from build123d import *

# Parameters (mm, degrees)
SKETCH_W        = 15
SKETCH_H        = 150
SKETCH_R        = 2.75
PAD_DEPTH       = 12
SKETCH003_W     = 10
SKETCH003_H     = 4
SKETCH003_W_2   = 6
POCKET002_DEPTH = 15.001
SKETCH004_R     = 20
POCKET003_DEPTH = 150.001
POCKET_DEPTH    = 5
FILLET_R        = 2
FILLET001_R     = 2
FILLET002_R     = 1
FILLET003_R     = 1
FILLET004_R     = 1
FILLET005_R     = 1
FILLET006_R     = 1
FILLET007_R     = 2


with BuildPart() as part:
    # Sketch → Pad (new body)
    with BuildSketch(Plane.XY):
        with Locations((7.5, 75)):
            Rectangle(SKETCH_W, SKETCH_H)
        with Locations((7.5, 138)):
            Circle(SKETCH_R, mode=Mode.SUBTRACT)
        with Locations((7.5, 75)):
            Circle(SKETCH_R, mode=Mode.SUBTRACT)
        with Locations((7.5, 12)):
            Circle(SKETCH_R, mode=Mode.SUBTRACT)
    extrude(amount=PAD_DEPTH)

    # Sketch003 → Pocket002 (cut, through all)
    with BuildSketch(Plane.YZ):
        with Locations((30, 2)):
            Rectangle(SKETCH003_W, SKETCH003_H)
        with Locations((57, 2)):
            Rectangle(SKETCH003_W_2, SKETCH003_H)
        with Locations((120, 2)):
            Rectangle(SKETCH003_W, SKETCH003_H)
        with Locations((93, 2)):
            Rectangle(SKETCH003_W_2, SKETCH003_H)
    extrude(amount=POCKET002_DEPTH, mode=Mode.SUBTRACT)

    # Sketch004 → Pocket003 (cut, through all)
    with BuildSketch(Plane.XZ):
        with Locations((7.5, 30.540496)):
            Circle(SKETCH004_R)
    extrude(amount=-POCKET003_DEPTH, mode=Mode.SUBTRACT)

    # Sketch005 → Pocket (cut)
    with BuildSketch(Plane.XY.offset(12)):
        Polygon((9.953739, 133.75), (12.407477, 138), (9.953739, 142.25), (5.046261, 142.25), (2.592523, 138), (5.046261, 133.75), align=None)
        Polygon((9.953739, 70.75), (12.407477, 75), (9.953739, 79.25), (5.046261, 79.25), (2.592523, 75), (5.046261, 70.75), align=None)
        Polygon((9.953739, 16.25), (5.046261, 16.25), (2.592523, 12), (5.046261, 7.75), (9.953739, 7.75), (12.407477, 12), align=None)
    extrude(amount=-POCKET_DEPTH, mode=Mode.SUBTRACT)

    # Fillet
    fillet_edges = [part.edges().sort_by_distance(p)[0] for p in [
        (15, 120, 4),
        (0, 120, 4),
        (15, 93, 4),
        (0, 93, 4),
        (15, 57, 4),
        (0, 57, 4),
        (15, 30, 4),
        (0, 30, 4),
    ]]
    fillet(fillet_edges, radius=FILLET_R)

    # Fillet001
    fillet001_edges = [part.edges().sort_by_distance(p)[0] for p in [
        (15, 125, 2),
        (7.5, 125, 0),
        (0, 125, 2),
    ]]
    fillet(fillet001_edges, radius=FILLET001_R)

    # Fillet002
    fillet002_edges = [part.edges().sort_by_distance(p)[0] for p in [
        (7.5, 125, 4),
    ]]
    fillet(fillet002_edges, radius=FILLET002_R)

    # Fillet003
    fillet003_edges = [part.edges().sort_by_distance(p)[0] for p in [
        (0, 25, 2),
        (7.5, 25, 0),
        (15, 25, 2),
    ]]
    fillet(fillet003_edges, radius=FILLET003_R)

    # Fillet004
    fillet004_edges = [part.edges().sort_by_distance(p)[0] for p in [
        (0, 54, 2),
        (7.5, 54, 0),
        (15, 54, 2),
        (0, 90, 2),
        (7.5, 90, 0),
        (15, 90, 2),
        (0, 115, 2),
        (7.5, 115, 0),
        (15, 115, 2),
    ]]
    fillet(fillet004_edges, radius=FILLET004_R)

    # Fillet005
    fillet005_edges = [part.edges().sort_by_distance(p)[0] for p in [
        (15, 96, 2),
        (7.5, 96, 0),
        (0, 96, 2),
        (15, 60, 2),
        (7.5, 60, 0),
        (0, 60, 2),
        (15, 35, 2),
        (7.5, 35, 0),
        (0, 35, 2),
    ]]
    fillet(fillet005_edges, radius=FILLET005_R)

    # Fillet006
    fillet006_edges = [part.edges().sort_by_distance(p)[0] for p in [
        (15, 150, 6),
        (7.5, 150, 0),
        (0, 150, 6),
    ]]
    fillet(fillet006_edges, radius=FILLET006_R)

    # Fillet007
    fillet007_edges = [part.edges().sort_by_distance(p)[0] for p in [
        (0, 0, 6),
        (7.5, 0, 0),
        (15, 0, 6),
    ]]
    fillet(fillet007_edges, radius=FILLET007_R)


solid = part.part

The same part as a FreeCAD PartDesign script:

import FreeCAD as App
import Part
import Sketcher
Q = App.Units.Quantity


def edges_at(feature, points):
    """Names of the edges that pass closest to the given points."""
    edges = feature.Shape.Edges
    near = lambda p: min(range(len(edges)), key=lambda i: edges[i].distToShape(Part.Vertex(*p))[0])
    return sorted({f"Edge{near(p) + 1}" for p in points})

doc = App.newDocument("Part")
body = doc.addObject("PartDesign::Body", "Body")

# Sketch on XY plane
sketch1 = body.newObject("Sketcher::SketchObject", "Sketch")
sketch1.AttachmentSupport = (doc.getObject("XY_Plane"), [""])
sketch1.MapMode = "FlatFace"
sketch1.addGeometry([
    Part.LineSegment(App.Vector(0, 150, 0), App.Vector(0, 0, 0)),  # 0
    Part.LineSegment(App.Vector(0, 0, 0), App.Vector(15, 0, 0)),  # 1
    Part.LineSegment(App.Vector(15, 0, 0), App.Vector(15, 150, 0)),  # 2
    Part.LineSegment(App.Vector(15, 150, 0), App.Vector(0, 150, 0)),  # 3
    Part.Circle(App.Vector(7.5, 12, 0), App.Vector(0, 0, 1), 2.8),  # 4
    Part.Circle(App.Vector(7.5, 75, 0), App.Vector(0, 0, 1), 2.8),  # 5
    Part.Circle(App.Vector(7.5, 138, 0), App.Vector(0, 0, 1), 2.8),  # 6
], False)
sketch1.addConstraint([
    Sketcher.Constraint("Coincident", 0, 2, 1, 1),
    Sketcher.Constraint("Coincident", 1, 2, 2, 1),
    Sketcher.Constraint("Coincident", 2, 2, 3, 1),
    Sketcher.Constraint("Coincident", 3, 2, 0, 1),
    Sketcher.Constraint("Vertical", 0),
    Sketcher.Constraint("Horizontal", 1),
    Sketcher.Constraint("Vertical", 2),
    Sketcher.Constraint("Horizontal", 3),
    Sketcher.Constraint("Coincident", 0, 2, -1, 1),
    Sketcher.Constraint("Equal", 4, 5),
    Sketcher.Constraint("Equal", 5, 6),
    Sketcher.Constraint("Vertical", 4, 3, 5, 3),
    Sketcher.Constraint("Vertical", 5, 3, 6, 3),
    Sketcher.Constraint("Diameter", 4, Q("5.5 mm")),
    Sketcher.Constraint("DistanceX", 1, 1, 1, 2, Q("15 mm")),
    Sketcher.Constraint("DistanceY", 0, 2, 0, 1, Q("150 mm")),
    Sketcher.Constraint("DistanceY", -1, 1, 4, 3, Q("12 mm")),
    Sketcher.Constraint("DistanceY", -1, 1, 5, 3, Q("75 mm")),
    Sketcher.Constraint("DistanceY", -1, 1, 6, 3, Q("138 mm")),
    Sketcher.Constraint("DistanceX", -1, 1, 4, 3, Q("7.5 mm")),
])
pad1 = body.newObject("PartDesign::Pad", "Pad")
pad1.Profile = sketch1
pad1.Length = 12

# Sketch on YZ plane
sketch2 = body.newObject("Sketcher::SketchObject", "Sketch001")
sketch2.AttachmentSupport = (doc.getObject("YZ_Plane"), [""])
sketch2.MapMode = "FlatFace"
sketch2.addGeometry([
    Part.LineSegment(App.Vector(25, 4, 0), App.Vector(25, 0, 0)),  # 0
    Part.LineSegment(App.Vector(25, 0, 0), App.Vector(35, 0, 0)),  # 1
    Part.LineSegment(App.Vector(35, 0, 0), App.Vector(35, 4, 0)),  # 2
    Part.LineSegment(App.Vector(35, 4, 0), App.Vector(25, 4, 0)),  # 3
    Part.LineSegment(App.Vector(54, 4, 0), App.Vector(54, 0, 0)),  # 4
    Part.LineSegment(App.Vector(54, 0, 0), App.Vector(60, 0, 0)),  # 5
    Part.LineSegment(App.Vector(60, 0, 0), App.Vector(60, 4, 0)),  # 6
    Part.LineSegment(App.Vector(60, 4, 0), App.Vector(54, 4, 0)),  # 7
    Part.LineSegment(App.Vector(115, 4, 0), App.Vector(115, 0, 0)),  # 8
    Part.LineSegment(App.Vector(115, 0, 0), App.Vector(125, 0, 0)),  # 9
    Part.LineSegment(App.Vector(125, 0, 0), App.Vector(125, 4, 0)),  # 10
    Part.LineSegment(App.Vector(125, 4, 0), App.Vector(115, 4, 0)),  # 11
    Part.LineSegment(App.Vector(90, 4, 0), App.Vector(90, 0, 0)),  # 12
    Part.LineSegment(App.Vector(90, 0, 0), App.Vector(96, 0, 0)),  # 13
    Part.LineSegment(App.Vector(96, 0, 0), App.Vector(96, 4, 0)),  # 14
    Part.LineSegment(App.Vector(96, 4, 0), App.Vector(90, 4, 0)),  # 15
], False)
sketch2.addConstraint([
    Sketcher.Constraint("Coincident", 0, 2, 1, 1),
    Sketcher.Constraint("Coincident", 1, 2, 2, 1),
    Sketcher.Constraint("Coincident", 2, 2, 3, 1),
    Sketcher.Constraint("Coincident", 3, 2, 0, 1),
    Sketcher.Constraint("Coincident", 4, 2, 5, 1),
    Sketcher.Constraint("Coincident", 5, 2, 6, 1),
    Sketcher.Constraint("Coincident", 6, 2, 7, 1),
    Sketcher.Constraint("Coincident", 7, 2, 4, 1),
    Sketcher.Constraint("Coincident", 8, 2, 9, 1),
    Sketcher.Constraint("Coincident", 9, 2, 10, 1),
    Sketcher.Constraint("Coincident", 10, 2, 11, 1),
    Sketcher.Constraint("Coincident", 11, 2, 8, 1),
    Sketcher.Constraint("Coincident", 12, 2, 13, 1),
    Sketcher.Constraint("Coincident", 13, 2, 14, 1),
    Sketcher.Constraint("Coincident", 14, 2, 15, 1),
    Sketcher.Constraint("Coincident", 15, 2, 12, 1),
    Sketcher.Constraint("Vertical", 0),
    Sketcher.Constraint("Horizontal", 1),
    Sketcher.Constraint("Vertical", 2),
    Sketcher.Constraint("Horizontal", 3),
    Sketcher.Constraint("Vertical", 4),
    Sketcher.Constraint("Horizontal", 5),
    Sketcher.Constraint("Vertical", 6),
    Sketcher.Constraint("Horizontal", 7),
    Sketcher.Constraint("Vertical", 8),
    Sketcher.Constraint("Horizontal", 9),
    Sketcher.Constraint("Vertical", 10),
    Sketcher.Constraint("Horizontal", 11),
    Sketcher.Constraint("Vertical", 12),
    Sketcher.Constraint("Horizontal", 13),
    Sketcher.Constraint("Vertical", 14),
    Sketcher.Constraint("Horizontal", 15),
    Sketcher.Constraint("PointOnObject", 0, 2, -1),
    Sketcher.Constraint("PointOnObject", 4, 2, -1),
    Sketcher.Constraint("PointOnObject", 8, 2, -1),
    Sketcher.Constraint("PointOnObject", 12, 2, -1),
    Sketcher.Constraint("Horizontal", 3, 2, 6, 2),
    Sketcher.Constraint("Horizontal", 7, 2, 10, 2),
    Sketcher.Constraint("Horizontal", 11, 2, 14, 2),
    Sketcher.Constraint("Equal", 3, 9),
    Sketcher.Constraint("Equal", 7, 13),
    Sketcher.Constraint("DistanceX", 1, 1, 1, 2, Q("10 mm")),
    Sketcher.Constraint("DistanceX", 5, 1, 5, 2, Q("6 mm")),
    Sketcher.Constraint("DistanceY", 0, 2, 0, 1, Q("4 mm")),
    Sketcher.Constraint("DistanceX", -1, 1, 0, 2, Q("25 mm")),
    Sketcher.Constraint("DistanceX", -1, 1, 4, 2, Q("54 mm")),
    Sketcher.Constraint("DistanceX", -1, 1, 8, 2, Q("115 mm")),
    Sketcher.Constraint("DistanceX", -1, 1, 12, 2, Q("90 mm")),
])
pocket1 = body.newObject("PartDesign::Pocket", "Pocket")
pocket1.Profile = sketch2
pocket1.Type = "ThroughAll"
pocket1.Reversed = True

# Sketch on XZ plane
sketch3 = body.newObject("Sketcher::SketchObject", "Sketch002")
sketch3.AttachmentSupport = (doc.getObject("XZ_Plane"), [""])
sketch3.MapMode = "FlatFace"
sketch3.addGeometry(Part.Circle(App.Vector(8, 31, 0), App.Vector(0, 0, 1), 20), False)
sketch3.addConstraint([
    Sketcher.Constraint("Diameter", 0, Q("40 mm")),
    Sketcher.Constraint("DistanceX", -1, 1, 0, 3, Q("7.5 mm")),
    Sketcher.Constraint("DistanceY", -1, 1, 0, 3, Q("30.540496 mm")),
])
pocket2 = body.newObject("PartDesign::Pocket", "Pocket001")
pocket2.Profile = sketch3
pocket2.Type = "ThroughAll"

# Sketch on XY plane
sketch4 = body.newObject("Sketcher::SketchObject", "Sketch003")
sketch4.AttachmentSupport = (doc.getObject("XY_Plane"), [""])
sketch4.MapMode = "FlatFace"
sketch4.AttachmentOffset = App.Placement(App.Vector(0, 0, 12), App.Rotation())
sketch4.addGeometry([
    Part.LineSegment(App.Vector(10, 133.8, 0), App.Vector(12.4, 138, 0)),  # 0
    Part.LineSegment(App.Vector(12.4, 138, 0), App.Vector(10, 142.2, 0)),  # 1
    Part.LineSegment(App.Vector(10, 142.2, 0), App.Vector(5, 142.2, 0)),  # 2
    Part.LineSegment(App.Vector(5, 142.2, 0), App.Vector(2.6, 138, 0)),  # 3
    Part.LineSegment(App.Vector(2.6, 138, 0), App.Vector(5, 133.8, 0)),  # 4
    Part.LineSegment(App.Vector(5, 133.8, 0), App.Vector(10, 133.8, 0)),  # 5
    Part.LineSegment(App.Vector(10, 70.8, 0), App.Vector(12.4, 75, 0)),  # 6
    Part.LineSegment(App.Vector(12.4, 75, 0), App.Vector(10, 79.2, 0)),  # 7
    Part.LineSegment(App.Vector(10, 79.2, 0), App.Vector(5, 79.2, 0)),  # 8
    Part.LineSegment(App.Vector(5, 79.2, 0), App.Vector(2.6, 75, 0)),  # 9
    Part.LineSegment(App.Vector(2.6, 75, 0), App.Vector(5, 70.8, 0)),  # 10
    Part.LineSegment(App.Vector(5, 70.8, 0), App.Vector(10, 70.8, 0)),  # 11
    Part.LineSegment(App.Vector(10, 16.2, 0), App.Vector(5, 16.2, 0)),  # 12
    Part.LineSegment(App.Vector(5, 16.2, 0), App.Vector(2.6, 12, 0)),  # 13
    Part.LineSegment(App.Vector(2.6, 12, 0), App.Vector(5, 7.8, 0)),  # 14
    Part.LineSegment(App.Vector(5, 7.8, 0), App.Vector(10, 7.8, 0)),  # 15
    Part.LineSegment(App.Vector(10, 7.8, 0), App.Vector(12.4, 12, 0)),  # 16
    Part.LineSegment(App.Vector(12.4, 12, 0), App.Vector(10, 16.2, 0)),  # 17
], False)
sketch4.addConstraint([
    Sketcher.Constraint("Coincident", 0, 2, 1, 1),
    Sketcher.Constraint("Coincident", 1, 2, 2, 1),
    Sketcher.Constraint("Coincident", 2, 2, 3, 1),
    Sketcher.Constraint("Coincident", 3, 2, 4, 1),
    Sketcher.Constraint("Coincident", 4, 2, 5, 1),
    Sketcher.Constraint("Coincident", 5, 2, 0, 1),
    Sketcher.Constraint("Coincident", 6, 2, 7, 1),
    Sketcher.Constraint("Coincident", 7, 2, 8, 1),
    Sketcher.Constraint("Coincident", 8, 2, 9, 1),
    Sketcher.Constraint("Coincident", 9, 2, 10, 1),
    Sketcher.Constraint("Coincident", 10, 2, 11, 1),
    Sketcher.Constraint("Coincident", 11, 2, 6, 1),
    Sketcher.Constraint("Coincident", 12, 2, 13, 1),
    Sketcher.Constraint("Coincident", 13, 2, 14, 1),
    Sketcher.Constraint("Coincident", 14, 2, 15, 1),
    Sketcher.Constraint("Coincident", 15, 2, 16, 1),
    Sketcher.Constraint("Coincident", 16, 2, 17, 1),
    Sketcher.Constraint("Coincident", 17, 2, 12, 1),
    Sketcher.Constraint("Horizontal", 2),
    Sketcher.Constraint("Horizontal", 5),
    Sketcher.Constraint("Horizontal", 8),
    Sketcher.Constraint("Horizontal", 11),
    Sketcher.Constraint("Horizontal", 12),
    Sketcher.Constraint("Horizontal", 15),
    Sketcher.Constraint("Parallel", 0, 3),
    Sketcher.Constraint("Parallel", 1, 4),
    Sketcher.Constraint("Parallel", 3, 6),
    Sketcher.Constraint("Parallel", 4, 7),
    Sketcher.Constraint("Parallel", 6, 9),
    Sketcher.Constraint("Parallel", 7, 10),
    Sketcher.Constraint("Parallel", 9, 13),
    Sketcher.Constraint("Parallel", 10, 14),
    Sketcher.Constraint("Parallel", 13, 16),
    Sketcher.Constraint("Parallel", 14, 17),
    Sketcher.Constraint("Horizontal", 0, 2, 3, 2),
    Sketcher.Constraint("Horizontal", 6, 2, 9, 2),
    Sketcher.Constraint("Horizontal", 13, 2, 16, 2),
    Sketcher.Constraint("Vertical", 2, 2, 4, 2),
    Sketcher.Constraint("Vertical", 1, 2, 5, 2),
    Sketcher.Constraint("Vertical", 0, 2, 6, 2),
    Sketcher.Constraint("Vertical", 5, 2, 7, 2),
    Sketcher.Constraint("Vertical", 4, 2, 8, 2),
    Sketcher.Constraint("Vertical", 8, 2, 10, 2),
    Sketcher.Constraint("Vertical", 10, 2, 12, 2),
    Sketcher.Constraint("Vertical", 9, 2, 13, 2),
    Sketcher.Constraint("Vertical", 12, 2, 14, 2),
    Sketcher.Constraint("Vertical", 11, 2, 15, 2),
    Sketcher.Constraint("Angle", 0, Q("60.000007 deg")),
    Sketcher.Constraint("DistanceY", -1, 1, 0, 2, Q("138 mm")),
    Sketcher.Constraint("DistanceY", -1, 1, 6, 2, Q("75 mm")),
    Sketcher.Constraint("DistanceY", -1, 1, 13, 2, Q("12 mm")),
    Sketcher.Constraint("DistanceY", 4, 2, 2, 2, Q("8.5 mm")),
    Sketcher.Constraint("DistanceX", 2, 2, 2, 1, Q("4.907478 mm")),
    Sketcher.Constraint("DistanceX", -1, 1, 1, 2, Q("9.953739 mm")),
])
pocket3 = body.newObject("PartDesign::Pocket", "Pocket002")
pocket3.Profile = sketch4
pocket3.Length = 5
doc.recompute()

fillet = body.newObject("PartDesign::Fillet", "Fillet")
fillet.Base = (pocket3, edges_at(pocket3, [
    (15, 120, 4),
    (0, 120, 4),
    (15, 93, 4),
    (0, 93, 4),
    (15, 57, 4),
    (0, 57, 4),
    (15, 30, 4),
    (0, 30, 4),
]))
fillet.Radius = 2
doc.recompute()

fillet2 = body.newObject("PartDesign::Fillet", "Fillet001")
fillet2.Base = (fillet, edges_at(fillet, [(15, 125, 3), (7.5, 125, 0), (0, 125, 3)]))
fillet2.Radius = 2
doc.recompute()

fillet3 = body.newObject("PartDesign::Fillet", "Fillet002")
fillet3.Base = (fillet2, edges_at(fillet2, [(7.5, 125, 4)]))
fillet3.Radius = 1
doc.recompute()

fillet4 = body.newObject("PartDesign::Fillet", "Fillet003")
fillet4.Base = (fillet3, edges_at(fillet3, [(0, 25, 3), (7.5, 25, 0), (15, 25, 3)]))
fillet4.Radius = 1
doc.recompute()

fillet5 = body.newObject("PartDesign::Fillet", "Fillet004")
fillet5.Base = (fillet4, edges_at(fillet4, [
    (0, 54, 3),
    (7.5, 54, 0),
    (15, 54, 3),
    (0, 90, 3),
    (7.5, 90, 0),
    (15, 90, 3),
    (0, 115, 3),
    (7.5, 115, 0),
    (15, 115, 3),
]))
fillet5.Radius = 1
doc.recompute()

fillet6 = body.newObject("PartDesign::Fillet", "Fillet005")
fillet6.Base = (fillet5, edges_at(fillet5, [
    (15, 96, 3),
    (7.5, 96, 0),
    (0, 96, 3),
    (15, 60, 3),
    (7.5, 60, 0),
    (0, 60, 3),
    (15, 35, 3),
    (7.5, 35, 0),
    (0, 35, 3),
]))
fillet6.Radius = 1
doc.recompute()

fillet7 = body.newObject("PartDesign::Fillet", "Fillet006")
fillet7.Base = (fillet6, edges_at(fillet6, [(15, 150, 6), (7.5, 150, 0), (0, 150, 6)]))
fillet7.Radius = 1
doc.recompute()

fillet8 = body.newObject("PartDesign::Fillet", "Fillet007")
fillet8.Base = (fillet7, edges_at(fillet7, [(0, 0, 6), (7.5, 0, 0), (15, 0, 6)]))
fillet8.Radius = 2

doc.recompute()
